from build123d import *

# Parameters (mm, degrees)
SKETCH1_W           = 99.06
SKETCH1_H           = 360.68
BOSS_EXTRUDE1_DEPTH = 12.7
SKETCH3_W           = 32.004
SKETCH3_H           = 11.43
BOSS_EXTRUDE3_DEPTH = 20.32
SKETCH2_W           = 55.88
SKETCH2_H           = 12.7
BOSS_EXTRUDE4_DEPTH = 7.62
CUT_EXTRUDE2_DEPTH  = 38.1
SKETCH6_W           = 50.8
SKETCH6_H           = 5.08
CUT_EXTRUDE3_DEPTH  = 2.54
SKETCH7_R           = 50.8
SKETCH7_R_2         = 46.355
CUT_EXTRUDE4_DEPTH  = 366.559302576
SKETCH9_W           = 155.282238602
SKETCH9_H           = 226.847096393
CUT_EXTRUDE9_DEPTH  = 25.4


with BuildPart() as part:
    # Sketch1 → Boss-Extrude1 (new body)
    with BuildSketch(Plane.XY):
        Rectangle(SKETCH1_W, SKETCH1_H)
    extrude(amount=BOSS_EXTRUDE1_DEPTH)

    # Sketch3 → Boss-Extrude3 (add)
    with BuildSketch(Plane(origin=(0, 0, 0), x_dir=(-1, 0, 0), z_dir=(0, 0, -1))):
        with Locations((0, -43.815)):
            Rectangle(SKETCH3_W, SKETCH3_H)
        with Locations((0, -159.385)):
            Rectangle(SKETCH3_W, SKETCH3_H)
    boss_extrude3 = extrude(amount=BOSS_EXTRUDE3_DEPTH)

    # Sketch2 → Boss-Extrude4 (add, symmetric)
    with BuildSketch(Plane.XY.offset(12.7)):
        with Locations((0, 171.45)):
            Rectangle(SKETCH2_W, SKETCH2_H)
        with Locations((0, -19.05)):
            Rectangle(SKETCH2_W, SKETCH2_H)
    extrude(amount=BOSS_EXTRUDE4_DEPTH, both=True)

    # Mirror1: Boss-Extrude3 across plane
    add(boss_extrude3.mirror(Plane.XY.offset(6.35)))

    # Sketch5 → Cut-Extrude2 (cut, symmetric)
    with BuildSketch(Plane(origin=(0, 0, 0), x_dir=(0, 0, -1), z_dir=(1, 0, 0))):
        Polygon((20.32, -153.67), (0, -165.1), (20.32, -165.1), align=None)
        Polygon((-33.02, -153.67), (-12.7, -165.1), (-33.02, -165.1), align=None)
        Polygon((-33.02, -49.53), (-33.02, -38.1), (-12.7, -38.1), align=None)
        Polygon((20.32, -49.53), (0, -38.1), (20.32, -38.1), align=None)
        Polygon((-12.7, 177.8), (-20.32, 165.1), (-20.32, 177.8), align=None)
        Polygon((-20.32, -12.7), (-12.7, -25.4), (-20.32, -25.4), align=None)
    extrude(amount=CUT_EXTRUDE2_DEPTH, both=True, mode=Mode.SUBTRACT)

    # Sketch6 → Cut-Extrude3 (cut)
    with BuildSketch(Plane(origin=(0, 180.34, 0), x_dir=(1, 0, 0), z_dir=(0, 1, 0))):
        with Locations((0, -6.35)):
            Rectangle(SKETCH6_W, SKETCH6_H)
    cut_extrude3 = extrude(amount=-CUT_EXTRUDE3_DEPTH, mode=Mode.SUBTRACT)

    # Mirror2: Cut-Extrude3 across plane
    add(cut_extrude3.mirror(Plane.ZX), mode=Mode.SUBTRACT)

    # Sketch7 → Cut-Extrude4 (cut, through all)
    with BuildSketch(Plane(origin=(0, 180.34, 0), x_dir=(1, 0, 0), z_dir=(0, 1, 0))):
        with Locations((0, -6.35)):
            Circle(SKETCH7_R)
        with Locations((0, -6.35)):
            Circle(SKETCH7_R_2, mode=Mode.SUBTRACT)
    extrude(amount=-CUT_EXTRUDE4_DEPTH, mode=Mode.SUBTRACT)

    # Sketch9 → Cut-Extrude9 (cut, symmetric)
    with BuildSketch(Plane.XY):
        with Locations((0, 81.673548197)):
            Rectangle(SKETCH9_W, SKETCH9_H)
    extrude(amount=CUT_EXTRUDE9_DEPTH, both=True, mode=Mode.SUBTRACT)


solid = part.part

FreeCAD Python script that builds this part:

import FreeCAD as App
import Part
import Sketcher

V = App.Vector
Q = App.Units.Quantity

doc = App.newDocument("Part")
body = doc.addObject("PartDesign::Body", "Body")

# Sketch on XY plane
sketch1 = doc.addObject("Sketcher::SketchObject", "Sketch")
body.addObject(sketch1)
sketch1.AttachmentSupport = (doc.XY_Plane, [""])
sketch1.MapMode = "FlatFace"
sketch1.addGeometry([
    Part.LineSegment(V(-50, 180, 0), V(-50, -180, 0)),
    Part.LineSegment(V(-50, -180, 0), V(50, -180, 0)),
    Part.LineSegment(V(50, -180, 0), V(50, 180, 0)),
    Part.LineSegment(V(50, 180, 0), V(-50, 180, 0)),
], False)
sketch1.addConstraint([
    Sketcher.Constraint("Coincident", 0, 2, 1, 1),
    Sketcher.Constraint("Coincident", 1, 2, 2, 1),
    Sketcher.Constraint("Coincident", 2, 2, 3, 1),
    Sketcher.Constraint("Coincident", 3, 2, 0, 1),
    Sketcher.Constraint("Vertical", 0),
    Sketcher.Constraint("Horizontal", 1),
    Sketcher.Constraint("Vertical", 2),
    Sketcher.Constraint("Horizontal", 3),
    Sketcher.Constraint("Symmetric", 0, 2, 2, 2, -1, 1),
    Sketcher.Constraint("DistanceX", 1, 1, 1, 2, Q("3.9 in")),
    Sketcher.Constraint("DistanceY", 0, 2, 0, 1, Q("14.2 in")),
])
pad1 = doc.addObject("PartDesign::Pad", "Pad")
body.addObject(pad1)
pad1.Profile = sketch1
pad1.Length = Q("0.5 in")

# Sketch on XY plane
sketch2 = doc.addObject("Sketcher::SketchObject", "Sketch001")
body.addObject(sketch2)
sketch2.AttachmentSupport = (doc.XY_Plane, [""])
sketch2.MapMode = "FlatFace"
sketch2.addGeometry([
    Part.LineSegment(V(16, -38, 0), V(16, -50, 0)),  # 0
    Part.LineSegment(V(16, -50, 0), V(-16, -50, 0)),  # 1
    Part.LineSegment(V(-16, -50, 0), V(-16, -38, 0)),  # 2
    Part.LineSegment(V(-16, -38, 0), V(16, -38, 0)),  # 3
    Part.LineSegment(V(16, -154, 0), V(16, -165, 0)),  # 4
    Part.LineSegment(V(16, -165, 0), V(-16, -165, 0)),  # 5
    Part.LineSegment(V(-16, -165, 0), V(-16, -154, 0)),  # 6
    Part.LineSegment(V(-16, -154, 0), V(16, -154, 0)),  # 7
], False)
sketch2.addConstraint([
    Sketcher.Constraint("Coincident", 0, 2, 1, 1),
    Sketcher.Constraint("Coincident", 1, 2, 2, 1),
    Sketcher.Constraint("Coincident", 2, 2, 3, 1),
    Sketcher.Constraint("Coincident", 3, 2, 0, 1),
    Sketcher.Constraint("Coincident", 4, 2, 5, 1),
    Sketcher.Constraint("Coincident", 5, 2, 6, 1),
    Sketcher.Constraint("Coincident", 6, 2, 7, 1),
    Sketcher.Constraint("Coincident", 7, 2, 4, 1),
    Sketcher.Constraint("Vertical", 0),
    Sketcher.Constraint("Horizontal", 1),
    Sketcher.Constraint("Vertical", 2),
    Sketcher.Constraint("Horizontal", 3),
    Sketcher.Constraint("Vertical", 4),
    Sketcher.Constraint("Horizontal", 5),
    Sketcher.Constraint("Vertical", 6),
    Sketcher.Constraint("Horizontal", 7),
    Sketcher.Constraint("Vertical", 3, 2, 4, 2),
    Sketcher.Constraint("Vertical", 2, 2, 5, 2),
    Sketcher.Constraint("Equal", 2, 4),
    Sketcher.Constraint("DistanceY", 4, 2, 3, 2, Q("5 in")),
    Sketcher.Constraint("DistanceX", 1, 2, 1, 1, Q("1.26 in")),
    Sketcher.Constraint("DistanceY", 0, 2, 0, 1, Q("0.45 in")),
    Sketcher.Constraint("DistanceY", 2, 2, -1, 1, Q("1.5 in")),
    Sketcher.Constraint("DistanceX", -1, 1, 0, 2, Q("0.63 in")),
])
pad2 = doc.addObject("PartDesign::Pad", "Pad001")
body.addObject(pad2)
pad2.Profile = sketch2
pad2.Length = Q("0.8 in")
pad2.Reversed = True

# Sketch on XY plane
sketch3 = doc.addObject("Sketcher::SketchObject", "Sketch002")
body.addObject(sketch3)
sketch3.AttachmentSupport = (doc.XY_Plane, [""])
sketch3.MapMode = "FlatFace"
sketch3.AttachmentOffset = App.Placement(V(0, 0, 0.5 * 25.4), App.Rotation())
sketch3.addGeometry([
    Part.LineSegment(V(-28, 178, 0), V(-28, 165, 0)),  # 0
    Part.LineSegment(V(-28, 165, 0), V(28, 165, 0)),  # 1
    Part.LineSegment(V(28, 165, 0), V(28, 178, 0)),  # 2
    Part.LineSegment(V(28, 178, 0), V(-28, 178, 0)),  # 3
    Part.LineSegment(V(-28, -13, 0), V(-28, -25, 0)),  # 4
    Part.LineSegment(V(-28, -25, 0), V(28, -25, 0)),  # 5
    Part.LineSegment(V(28, -25, 0), V(28, -13, 0)),  # 6
    Part.LineSegment(V(28, -13, 0), V(-28, -13, 0)),  # 7
], False)
sketch3.addConstraint([
    Sketcher.Constraint("Coincident", 0, 2, 1, 1),
    Sketcher.Constraint("Coincident", 1, 2, 2, 1),
    Sketcher.Constraint("Coincident", 2, 2, 3, 1),
    Sketcher.Constraint("Coincident", 3, 2, 0, 1),
    Sketcher.Constraint("Coincident", 4, 2, 5, 1),
    Sketcher.Constraint("Coincident", 5, 2, 6, 1),
    Sketcher.Constraint("Coincident", 6, 2, 7, 1),
    Sketcher.Constraint("Coincident", 7, 2, 4, 1),
    Sketcher.Constraint("Vertical", 0),
    Sketcher.Constraint("Horizontal", 1),
    Sketcher.Constraint("Vertical", 2),
    Sketcher.Constraint("Horizontal", 3),
    Sketcher.Constraint("Vertical", 4),
    Sketcher.Constraint("Horizontal", 5),
    Sketcher.Constraint("Vertical", 6),
    Sketcher.Constraint("Horizontal", 7),
    Sketcher.Constraint("Vertical", 3, 2, 4, 2),
    Sketcher.Constraint("Vertical", 2, 2, 5, 2),
    Sketcher.Constraint("Equal", 2, 4),
    Sketcher.Constraint("DistanceX", 1, 1, 1, 2, Q("2.2 in")),
    Sketcher.Constraint("DistanceY", 0, 2, 0, 1, Q("0.5 in")),
    Sketcher.Constraint("DistanceY", -1, 1, 2, 2, Q("7 in")),
    Sketcher.Constraint("DistanceY", 4, 2, -1, 1, Q("1 in")),
    Sketcher.Constraint("DistanceX", 0, 2, -1, 1, Q("1.1 in")),
])
pad3 = doc.addObject("PartDesign::Pad", "Pad002")
body.addObject(pad3)
pad3.Profile = sketch3
pad3.Length = Q("0.6 in")
pad3.Midplane = True
doc.recompute()

datumplane = doc.addObject("PartDesign::Plane", "DatumPlane")
body.addObject(datumplane)
datumplane.AttachmentSupport = (doc.XY_Plane, [""])
datumplane.MapMode = "FlatFace"
datumplane.AttachmentOffset = App.Placement(V(0, 0, 0.25 * 25.4), App.Rotation())
mirrored = doc.addObject("PartDesign::Mirrored", "Mirrored")
body.addObject(mirrored)
mirrored.Originals = [pad2]
mirrored.MirrorPlane = (datumplane, [""])
body.Tip = mirrored

# Sketch on YZ plane
sketch4 = doc.addObject("Sketcher::SketchObject", "Sketch003")
body.addObject(sketch4)
sketch4.AttachmentSupport = (doc.YZ_Plane, [""])
sketch4.MapMode = "FlatFace"
sketch4.addGeometry([
    Part.LineSegment(V(-154, -20, 0), V(-165, 0, 0)),  # 0
    Part.LineSegment(V(-165, 0, 0), V(-165, -20, 0)),  # 1
    Part.LineSegment(V(-165, -20, 0), V(-154, -20, 0)),  # 2
    Part.LineSegment(V(-165, 13, 0), V(-154, 33, 0)),  # 3
    Part.LineSegment(V(-154, 33, 0), V(-165, 33, 0)),  # 4
    Part.LineSegment(V(-165, 33, 0), V(-165, 13, 0)),  # 5
    Part.LineSegment(V(-38, 33, 0), V(-50, 33, 0)),  # 6
    Part.LineSegment(V(-50, 33, 0), V(-38, 13, 0)),  # 7
    Part.LineSegment(V(-38, 13, 0), V(-38, 33, 0)),  # 8
    Part.LineSegment(V(-38, 0, 0), V(-50, -20, 0)),  # 9
    Part.LineSegment(V(-50, -20, 0), V(-38, -20, 0)),  # 10
    Part.LineSegment(V(-38, -20, 0), V(-38, 0, 0)),  # 11
    Part.LineSegment(V(165, 20, 0), V(178, 13, 0)),  # 12
    Part.LineSegment(V(178, 13, 0), V(178, 20, 0)),  # 13
    Part.LineSegment(V(178, 20, 0), V(165, 20, 0)),  # 14
    Part.LineSegment(V(-25, 13, 0), V(-13, 20, 0)),  # 15
    Part.LineSegment(V(-13, 20, 0), V(-25, 20, 0)),  # 16
    Part.LineSegment(V(-25, 20, 0), V(-25, 13, 0)),  # 17
], False)
sketch4.addConstraint([
    Sketcher.Constraint("Coincident", 0, 2, 1, 1),
    Sketcher.Constraint("Coincident", 1, 2, 2, 1),
    Sketcher.Constraint("Coincident", 2, 2, 0, 1),
    Sketcher.Constraint("Coincident", 3, 2, 4, 1),
    Sketcher.Constraint("Coincident", 4, 2, 5, 1),
    Sketcher.Constraint("Coincident", 5, 2, 3, 1),
    Sketcher.Constraint("Coincident", 6, 2, 7, 1),
    Sketcher.Constraint("Coincident", 7, 2, 8, 1),
    Sketcher.Constraint("Coincident", 8, 2, 6, 1),
    Sketcher.Constraint("Coincident", 9, 2, 10, 1),
    Sketcher.Constraint("Coincident", 10, 2, 11, 1),
    Sketcher.Constraint("Coincident", 11, 2, 9, 1),
    Sketcher.Constraint("Coincident", 12, 2, 13, 1),
    Sketcher.Constraint("Coincident", 13, 2, 14, 1),
    Sketcher.Constraint("Coincident", 14, 2, 12, 1),
    Sketcher.Constraint("Coincident", 15, 2, 16, 1),
    Sketcher.Constraint("Coincident", 16, 2, 17, 1),
    Sketcher.Constraint("Coincident", 17, 2, 15, 1),
    Sketcher.Constraint("Vertical", 1),
    Sketcher.Constraint("Horizontal", 2),
    Sketcher.Constraint("Horizontal", 4),
    Sketcher.Constraint("Vertical", 5),
    Sketcher.Constraint("Horizontal", 6),
    Sketcher.Constraint("Vertical", 8),
    Sketcher.Constraint("Horizontal", 10),
    Sketcher.Constraint("Vertical", 11),
    Sketcher.Constraint("Vertical", 13),
    Sketcher.Constraint("Horizontal", 14),
    Sketcher.Constraint("Horizontal", 16),
    Sketcher.Constraint("Vertical", 17),
    Sketcher.Constraint("Symmetric", 1, 2, 14, 2, -1, 1),
    Sketcher.Constraint("PointOnObject", 0, 2, -1),
    Sketcher.Constraint("PointOnObject", 11, 2, -1),
    Sketcher.Constraint("Parallel", 0, 7),
    Sketcher.Constraint("Parallel", 3, 9),
    Sketcher.Constraint("Horizontal", 4, 2, 6, 2),
    Sketcher.Constraint("Horizontal", 5, 2, 7, 2),
    Sketcher.Constraint("Horizontal", 2, 2, 9, 2),
    Sketcher.Constraint("Horizontal", 7, 2, 12, 2),
    Sketcher.Constraint("Horizontal", 14, 2, 15, 2),
    Sketcher.Constraint("Horizontal", 12, 2, 17, 2),
    Sketcher.Constraint("Vertical", 2, 2, 3, 2),
    Sketcher.Constraint("Vertical", 1, 2, 4, 2),
    Sketcher.Constraint("Vertical", 6, 2, 9, 2),
    Sketcher.Constraint("Vertical", 8, 2, 10, 2),
    Sketcher.Constraint("Equal", 14, 16),
    Sketcher.Constraint("DistanceX", 14, 2, 14, 1, Q("0.5 in")),
    Sketcher.Constraint("DistanceY", 1, 2, 1, 1, Q("0.8 in")),
    Sketcher.Constraint("DistanceY", 13, 1, 13, 2, Q("0.3 in")),
    Sketcher.Constraint("DistanceX", -1, 1, 12, 2, Q("7 in")),
    Sketcher.Constraint("DistanceX", 16, 2, -1, 1, Q("1 in")),
    Sketcher.Constraint("DistanceX", 5, 2, 7, 2, Q("5 in")),
    Sketcher.Constraint("DistanceX", 2, 1, 2, 2, Q("0.45 in")),
])
pocket1 = doc.addObject("PartDesign::Pocket", "Pocket")
body.addObject(pocket1)
pocket1.Profile = sketch4
pocket1.Length = Q("3 in")
pocket1.Midplane = True

# Sketch on XZ plane
sketch5 = doc.addObject("Sketcher::SketchObject", "Sketch004")
body.addObject(sketch5)
sketch5.AttachmentSupport = (doc.XZ_Plane, [""])
sketch5.MapMode = "FlatFace"
sketch5.AttachmentOffset = App.Placement(V(0, 0, -7.1 * 25.4), App.Rotation())
sketch5.addGeometry([
    Part.LineSegment(V(-25, 4, 0), V(-25, 9, 0)),
    Part.LineSegment(V(-25, 9, 0), V(25, 9, 0)),
    Part.LineSegment(V(25, 9, 0), V(25, 4, 0)),
    Part.LineSegment(V(25, 4, 0), V(-25, 4, 0)),
], False)
sketch5.addConstraint([
    Sketcher.Constraint("Coincident", 0, 2, 1, 1),
    Sketcher.Constraint("Coincident", 1, 2, 2, 1),
    Sketcher.Constraint("Coincident", 2, 2, 3, 1),
    Sketcher.Constraint("Coincident", 3, 2, 0, 1),
    Sketcher.Constraint("Vertical", 0),
    Sketcher.Constraint("Horizontal", 1),
    Sketcher.Constraint("Vertical", 2),
    Sketcher.Constraint("Horizontal", 3),
    Sketcher.Constraint("DistanceX", 1, 1, 1, 2, Q("2 in")),
    Sketcher.Constraint("DistanceY", 0, 1, 0, 2, Q("0.2 in")),
    Sketcher.Constraint("DistanceX", 0, 2, -1, 1, Q("1 in")),
    Sketcher.Constraint("DistanceY", -1, 1, 0, 2, Q("0.35 in")),
])
pocket2 = doc.addObject("PartDesign::Pocket", "Pocket001")
body.addObject(pocket2)
pocket2.Profile = sketch5
pocket2.Length = Q("0.1 in")
pocket2.Reversed = True
doc.recompute()

mirrored2 = doc.addObject("PartDesign::Mirrored", "Mirrored001")
body.addObject(mirrored2)
mirrored2.Originals = [pocket2]
mirrored2.MirrorPlane = (doc.XZ_Plane, [""])
body.Tip = mirrored2

# Sketch on XZ plane
sketch6 = doc.addObject("Sketcher::SketchObject", "Sketch005")
body.addObject(sketch6)
sketch6.AttachmentSupport = (doc.XZ_Plane, [""])
sketch6.MapMode = "FlatFace"
sketch6.AttachmentOffset = App.Placement(V(0, 0, -7.1 * 25.4), App.Rotation())
sketch6.addGeometry([
    Part.Circle(V(0, 6, 0), V(0, 0, 1), 51),
    Part.Circle(V(0, 6, 0), V(0, 0, 1), 46),
], False)
sketch6.addConstraint([
    Sketcher.Constraint("Coincident", 1, 3, 0, 3),
    Sketcher.Constraint("PointOnObject", 0, 3, -2),
    Sketcher.Constraint("Diameter", 0, Q("4 in")),
    Sketcher.Constraint("Diameter", 1, Q("3.65 in")),
    Sketcher.Constraint("DistanceY", -1, 1, 0, 3, Q("0.25 in")),
])
pocket3 = doc.addObject("PartDesign::Pocket", "Pocket002")
body.addObject(pocket3)
pocket3.Profile = sketch6
pocket3.Type = "ThroughAll"
pocket3.Reversed = True

# Sketch on XY plane
sketch7 = doc.addObject("Sketcher::SketchObject", "Sketch006")
body.addObject(sketch7)
sketch7.AttachmentSupport = (doc.XY_Plane, [""])
sketch7.MapMode = "FlatFace"
sketch7.addGeometry([
    Part.LineSegment(V(-78, 195, 0), V(-78, -32, 0)),
    Part.LineSegment(V(-78, -32, 0), V(78, -32, 0)),
    Part.LineSegment(V(78, -32, 0), V(78, 195, 0)),
    Part.LineSegment(V(78, 195, 0), V(-78, 195, 0)),
], False)
sketch7.addConstraint([
    Sketcher.Constraint("Coincident", 0, 2, 1, 1),
    Sketcher.Constraint("Coincident", 1, 2, 2, 1),
    Sketcher.Constraint("Coincident", 2, 2, 3, 1),
    Sketcher.Constraint("Coincident", 3, 2, 0, 1),
    Sketcher.Constraint("Vertical", 0),
    Sketcher.Constraint("Horizontal", 1),
    Sketcher.Constraint("Vertical", 2),
    Sketcher.Constraint("Horizontal", 3),
    Sketcher.Constraint("DistanceY", 0, 2, -1, 1, Q("1.25 in")),
    Sketcher.Constraint("DistanceX", 1, 1, 1, 2, Q("155.282239 mm")),
    Sketcher.Constraint("DistanceY", 0, 2, 0, 1, Q("226.847096 mm")),
    Sketcher.Constraint("DistanceX", 0, 2, -1, 1, Q("77.641119 mm")),
])
pocket4 = doc.addObject("PartDesign::Pocket", "Pocket003")
body.addObject(pocket4)
pocket4.Profile = sketch7
pocket4.Length = Q("2 in")
pocket4.Midplane = True

doc.recompute()
